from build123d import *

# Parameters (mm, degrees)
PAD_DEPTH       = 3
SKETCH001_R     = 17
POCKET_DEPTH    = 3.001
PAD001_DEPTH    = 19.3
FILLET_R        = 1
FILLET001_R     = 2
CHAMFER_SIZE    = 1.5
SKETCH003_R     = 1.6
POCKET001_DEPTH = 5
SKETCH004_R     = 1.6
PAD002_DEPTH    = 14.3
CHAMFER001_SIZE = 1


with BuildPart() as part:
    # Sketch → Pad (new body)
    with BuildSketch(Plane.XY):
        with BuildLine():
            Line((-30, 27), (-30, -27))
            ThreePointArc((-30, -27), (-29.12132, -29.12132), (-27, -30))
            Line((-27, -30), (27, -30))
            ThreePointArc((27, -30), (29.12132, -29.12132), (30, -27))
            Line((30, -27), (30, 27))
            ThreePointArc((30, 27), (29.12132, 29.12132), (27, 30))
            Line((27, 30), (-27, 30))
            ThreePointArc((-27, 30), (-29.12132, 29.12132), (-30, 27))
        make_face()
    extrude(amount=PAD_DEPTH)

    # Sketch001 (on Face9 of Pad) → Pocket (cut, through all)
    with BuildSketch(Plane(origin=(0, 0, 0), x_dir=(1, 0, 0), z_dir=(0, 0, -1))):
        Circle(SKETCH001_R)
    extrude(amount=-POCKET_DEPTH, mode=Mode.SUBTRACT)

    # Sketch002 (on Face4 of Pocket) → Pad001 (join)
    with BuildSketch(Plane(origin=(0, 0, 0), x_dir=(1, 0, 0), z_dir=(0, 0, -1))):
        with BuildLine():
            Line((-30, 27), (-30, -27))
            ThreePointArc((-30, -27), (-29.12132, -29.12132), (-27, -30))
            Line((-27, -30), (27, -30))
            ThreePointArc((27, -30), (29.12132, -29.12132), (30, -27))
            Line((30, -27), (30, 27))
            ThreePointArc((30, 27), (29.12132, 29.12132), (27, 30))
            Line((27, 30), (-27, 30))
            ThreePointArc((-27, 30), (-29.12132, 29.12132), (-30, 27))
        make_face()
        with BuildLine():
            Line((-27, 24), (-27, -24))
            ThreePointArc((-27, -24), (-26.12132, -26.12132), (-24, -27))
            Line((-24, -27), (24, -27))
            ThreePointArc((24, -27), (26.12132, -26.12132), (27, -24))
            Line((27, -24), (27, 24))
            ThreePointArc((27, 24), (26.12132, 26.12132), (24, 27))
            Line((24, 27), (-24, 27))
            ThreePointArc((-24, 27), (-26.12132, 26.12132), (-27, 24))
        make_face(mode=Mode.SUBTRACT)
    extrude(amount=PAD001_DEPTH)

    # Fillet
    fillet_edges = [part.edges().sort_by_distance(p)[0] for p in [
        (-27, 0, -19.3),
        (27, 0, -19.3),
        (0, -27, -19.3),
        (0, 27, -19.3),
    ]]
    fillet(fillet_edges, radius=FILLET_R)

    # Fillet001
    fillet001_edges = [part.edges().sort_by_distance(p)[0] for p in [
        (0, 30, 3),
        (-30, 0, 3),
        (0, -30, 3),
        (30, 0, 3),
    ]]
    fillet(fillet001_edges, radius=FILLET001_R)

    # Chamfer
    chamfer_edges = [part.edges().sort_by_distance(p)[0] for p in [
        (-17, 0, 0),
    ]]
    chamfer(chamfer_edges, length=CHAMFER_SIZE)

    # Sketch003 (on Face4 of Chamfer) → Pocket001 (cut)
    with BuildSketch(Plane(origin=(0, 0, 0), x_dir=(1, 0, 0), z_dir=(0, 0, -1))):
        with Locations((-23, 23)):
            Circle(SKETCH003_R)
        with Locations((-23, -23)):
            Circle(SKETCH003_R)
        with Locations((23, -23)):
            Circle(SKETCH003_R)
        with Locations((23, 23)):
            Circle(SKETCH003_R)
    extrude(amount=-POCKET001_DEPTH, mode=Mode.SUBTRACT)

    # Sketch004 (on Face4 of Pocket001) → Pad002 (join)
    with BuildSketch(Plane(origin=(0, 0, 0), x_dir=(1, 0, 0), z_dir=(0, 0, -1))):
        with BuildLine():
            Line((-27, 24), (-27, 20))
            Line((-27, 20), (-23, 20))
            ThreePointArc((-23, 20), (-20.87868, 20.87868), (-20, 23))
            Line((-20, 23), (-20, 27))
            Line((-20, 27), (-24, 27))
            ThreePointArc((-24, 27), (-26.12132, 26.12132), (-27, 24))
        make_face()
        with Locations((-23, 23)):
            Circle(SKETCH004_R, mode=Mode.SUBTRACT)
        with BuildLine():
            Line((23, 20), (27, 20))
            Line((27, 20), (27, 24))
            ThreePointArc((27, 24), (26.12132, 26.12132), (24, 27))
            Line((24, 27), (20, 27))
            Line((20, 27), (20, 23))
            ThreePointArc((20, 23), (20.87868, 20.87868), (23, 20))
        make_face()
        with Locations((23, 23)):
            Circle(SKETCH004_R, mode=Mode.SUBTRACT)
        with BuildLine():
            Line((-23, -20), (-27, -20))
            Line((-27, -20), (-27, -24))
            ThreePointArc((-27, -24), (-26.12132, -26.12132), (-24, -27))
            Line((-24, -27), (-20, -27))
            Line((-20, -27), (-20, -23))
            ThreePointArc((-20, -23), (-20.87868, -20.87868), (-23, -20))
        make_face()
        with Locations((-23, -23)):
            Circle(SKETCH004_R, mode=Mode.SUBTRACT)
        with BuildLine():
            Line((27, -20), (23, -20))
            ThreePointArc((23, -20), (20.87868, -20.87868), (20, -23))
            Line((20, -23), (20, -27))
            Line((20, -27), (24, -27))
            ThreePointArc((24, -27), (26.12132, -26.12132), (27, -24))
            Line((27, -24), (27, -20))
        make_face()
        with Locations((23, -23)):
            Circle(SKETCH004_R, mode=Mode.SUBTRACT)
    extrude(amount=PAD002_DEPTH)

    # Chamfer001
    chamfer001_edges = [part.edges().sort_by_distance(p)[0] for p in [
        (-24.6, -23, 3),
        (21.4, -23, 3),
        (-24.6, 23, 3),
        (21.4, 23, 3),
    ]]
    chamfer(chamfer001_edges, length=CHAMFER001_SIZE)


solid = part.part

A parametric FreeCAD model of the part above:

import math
import FreeCAD as App
import Part
import Sketcher
from FreeCAD import Vector


def edges_at(feature, points):
    """Names of the edges that pass closest to the given points."""
    edges = feature.Shape.Edges
    near = lambda p: min(range(len(edges)), key=lambda i: edges[i].distToShape(Part.Vertex(*p))[0])
    return sorted({f"Edge{near(p) + 1}" for p in points})

doc = App.newDocument("Part")
body = doc.addObject("PartDesign::Body", "Body")

# Sketch on XY plane
sketch1 = doc.addObject("Sketcher::SketchObject", "Sketch")
body.addObject(sketch1)
sketch1.AttachmentSupport = (doc.XY_Plane, [""])
sketch1.MapMode = "FlatFace"
sketch1.addGeometry([
    Part.LineSegment(Vector(-30, 27, 0), Vector(-30, -27, 0)),  # 0
    Part.ArcOfCircle(Part.Circle(Vector(-27, -27, 0), Vector(0, 0, 1), 3), math.radians(-180), math.radians(-90)),  # 1
    Part.LineSegment(Vector(-27, -30, 0), Vector(27, -30, 0)),  # 2
    Part.ArcOfCircle(Part.Circle(Vector(27, -27, 0), Vector(0, 0, 1), 3), math.radians(-90), math.radians(0)),  # 3
    Part.LineSegment(Vector(30, -27, 0), Vector(30, 27, 0)),  # 4
    Part.ArcOfCircle(Part.Circle(Vector(27, 27, 0), Vector(0, 0, 1), 3), math.radians(0), math.radians(90)),  # 5
    Part.LineSegment(Vector(27, 30, 0), Vector(-27, 30, 0)),  # 6
    Part.ArcOfCircle(Part.Circle(Vector(-27, 27, 0), Vector(0, 0, 1), 3), math.radians(90), math.radians(180)),  # 7
], False)
sketch1.addConstraint([
    Sketcher.Constraint("Tangent", 0, 2, 1, 1),
    Sketcher.Constraint("Tangent", 1, 2, 2, 1),
    Sketcher.Constraint("Tangent", 2, 2, 3, 1),
    Sketcher.Constraint("Tangent", 3, 2, 4, 1),
    Sketcher.Constraint("Tangent", 4, 2, 5, 1),
    Sketcher.Constraint("Tangent", 5, 2, 6, 1),
    Sketcher.Constraint("Tangent", 6, 2, 7, 1),
    Sketcher.Constraint("Tangent", 7, 2, 0, 1),
    Sketcher.Constraint("Vertical", 0),
    Sketcher.Constraint("Horizontal", 2),
    Sketcher.Constraint("Vertical", 4),
    Sketcher.Constraint("Horizontal", 6),
    Sketcher.Constraint("Equal", 1, 3),
    Sketcher.Constraint("Equal", 3, 5),
    Sketcher.Constraint("Equal", 5, 7),
    Sketcher.Constraint("Symmetric", 1, 3, 5, 3, -1, 1),
    Sketcher.Constraint("Equal", 6, 0),
    Sketcher.Constraint("Radius", 1, 3.000001),
    Sketcher.Constraint("DistanceX", 2, 1, 2, 2, 54.0),
])
pad1 = doc.addObject("PartDesign::Pad", "Pad")
body.addObject(pad1)
pad1.Profile = sketch1
pad1.Length = 3

# Sketch on XY plane
sketch2 = doc.addObject("Sketcher::SketchObject", "Sketch001")
body.addObject(sketch2)
sketch2.AttachmentSupport = (doc.XY_Plane, [""])
sketch2.MapMode = "FlatFace"
sketch2.addGeometry(Part.Circle(Vector(0, 0, 0), Vector(0, 0, 1), 17), False)
sketch2.addConstraint([
    Sketcher.Constraint("Coincident", 0, 3, -1, 1),
    Sketcher.Constraint("Diameter", 0, 34.0),
])
pocket1 = doc.addObject("PartDesign::Pocket", "Pocket")
body.addObject(pocket1)
pocket1.Profile = sketch2
pocket1.Type = "ThroughAll"
pocket1.Reversed = True

# Sketch on XY plane
sketch3 = doc.addObject("Sketcher::SketchObject", "Sketch002")
body.addObject(sketch3)
sketch3.AttachmentSupport = (doc.XY_Plane, [""])
sketch3.MapMode = "FlatFace"
sketch3.addGeometry([
    Part.LineSegment(Vector(-30, -27, 0), Vector(-30, 27, 0)),  # 0
    Part.ArcOfCircle(Part.Circle(Vector(-27, 27, 0), Vector(0, 0, 1), 3), math.radians(90), math.radians(180)),  # 1
    Part.LineSegment(Vector(-27, 30, 0), Vector(27, 30, 0)),  # 2
    Part.ArcOfCircle(Part.Circle(Vector(27, 27, 0), Vector(0, 0, 1), 3), math.radians(0), math.radians(90)),  # 3
    Part.LineSegment(Vector(30, 27, 0), Vector(30, -27, 0)),  # 4
    Part.ArcOfCircle(Part.Circle(Vector(27, -27, 0), Vector(0, 0, 1), 3), math.radians(-90), math.radians(0)),  # 5
    Part.LineSegment(Vector(27, -30, 0), Vector(-27, -30, 0)),  # 6
    Part.ArcOfCircle(Part.Circle(Vector(-27, -27, 0), Vector(0, 0, 1), 3), math.radians(-180), math.radians(-90)),  # 7
    Part.LineSegment(Vector(-27, 24, 0), Vector(-27, -24, 0)),  # 8
    Part.ArcOfCircle(Part.Circle(Vector(-24, -24, 0), Vector(0, 0, 1), 3), math.radians(-180), math.radians(-90)),  # 9
    Part.LineSegment(Vector(-24, -27, 0), Vector(24, -27, 0)),  # 10
    Part.ArcOfCircle(Part.Circle(Vector(24, -24, 0), Vector(0, 0, 1), 3), math.radians(-90), math.radians(0)),  # 11
    Part.LineSegment(Vector(27, -24, 0), Vector(27, 24, 0)),  # 12
    Part.ArcOfCircle(Part.Circle(Vector(24, 24, 0), Vector(0, 0, 1), 3), math.radians(0), math.radians(90)),  # 13
    Part.LineSegment(Vector(24, 27, 0), Vector(-24, 27, 0)),  # 14
    Part.ArcOfCircle(Part.Circle(Vector(-24, 24, 0), Vector(0, 0, 1), 3), math.radians(90), math.radians(180)),  # 15
], False)
sketch3.addConstraint([
    Sketcher.Constraint("Tangent", 0, 2, 1, 2),
    Sketcher.Constraint("Tangent", 1, 1, 2, 1),
    Sketcher.Constraint("Tangent", 2, 2, 3, 2),
    Sketcher.Constraint("Tangent", 3, 1, 4, 1),
    Sketcher.Constraint("Tangent", 4, 2, 5, 2),
    Sketcher.Constraint("Tangent", 5, 1, 6, 1),
    Sketcher.Constraint("Tangent", 6, 2, 7, 2),
    Sketcher.Constraint("Tangent", 7, 1, 0, 1),
    Sketcher.Constraint("Tangent", 8, 2, 9, 1),
    Sketcher.Constraint("Tangent", 9, 2, 10, 1),
    Sketcher.Constraint("Tangent", 10, 2, 11, 1),
    Sketcher.Constraint("Tangent", 11, 2, 12, 1),
    Sketcher.Constraint("Tangent", 12, 2, 13, 1),
    Sketcher.Constraint("Tangent", 13, 2, 14, 1),
    Sketcher.Constraint("Tangent", 14, 2, 15, 1),
    Sketcher.Constraint("Tangent", 15, 2, 8, 1),
    Sketcher.Constraint("Vertical", 0),
    Sketcher.Constraint("Horizontal", 2),
    Sketcher.Constraint("Vertical", 4),
    Sketcher.Constraint("Horizontal", 6),
    Sketcher.Constraint("Vertical", 8),
    Sketcher.Constraint("Horizontal", 10),
    Sketcher.Constraint("Vertical", 12),
    Sketcher.Constraint("Horizontal", 14),
    Sketcher.Constraint("Equal", 1, 3),
    Sketcher.Constraint("Equal", 3, 5),
    Sketcher.Constraint("Equal", 5, 7),
    Sketcher.Constraint("Equal", 7, 9),
    Sketcher.Constraint("Equal", 9, 11),
    Sketcher.Constraint("Equal", 11, 13),
    Sketcher.Constraint("Equal", 13, 15),
    Sketcher.Constraint("Symmetric", 1, 3, 5, 3, -1, 1),
    Sketcher.Constraint("Symmetric", 9, 3, 13, 3, -1, 1),
    Sketcher.Constraint("Horizontal", 7, 1, 9, 2),
    Sketcher.Constraint("Vertical", 6, 2, 8, 2),
    Sketcher.Constraint("Equal", 6, 0),
    Sketcher.Constraint("Radius", 1, 3.000001),
    Sketcher.Constraint("DistanceX", 2, 1, 2, 2, 54.0),
])
pad2 = doc.addObject("PartDesign::Pad", "Pad001")
body.addObject(pad2)
pad2.Profile = sketch3
pad2.Length = 19.3
pad2.Reversed = True
doc.recompute()

fillet = doc.addObject("PartDesign::Fillet", "Fillet")
body.addObject(fillet)
fillet.Base = (pad2, edges_at(pad2, [
    (-27, 0, -19.3),
    (27, 0, -19.3),
    (0, -27, -19.3),
    (0, 27, -19.3),
]))
fillet.Radius = 1
doc.recompute()

fillet2 = doc.addObject("PartDesign::Fillet", "Fillet001")
body.addObject(fillet2)
fillet2.Base = (fillet, edges_at(fillet, [
    (0, 30, 3),
    (-30, 0, 3),
    (0, -30, 3),
    (30, 0, 3),
]))
fillet2.Radius = 2
doc.recompute()

chamfer = doc.addObject("PartDesign::Chamfer", "Chamfer")
body.addObject(chamfer)
chamfer.Base = (fillet2, edges_at(fillet2, [(-17, 0, 0)]))
chamfer.Size = 1.5

# Sketch on XY plane
sketch4 = doc.addObject("Sketcher::SketchObject", "Sketch003")
body.addObject(sketch4)
sketch4.AttachmentSupport = (doc.XY_Plane, [""])
sketch4.MapMode = "FlatFace"
sketch4.addGeometry([
    Part.Circle(Vector(-23, -23, 0), Vector(0, 0, 1), 1.6),
    Part.Circle(Vector(-23, 23, 0), Vector(0, 0, 1), 1.6),
    Part.Circle(Vector(23, 23, 0), Vector(0, 0, 1), 1.6),
    Part.Circle(Vector(23, -23, 0), Vector(0, 0, 1), 1.6),
], False)
sketch4.addConstraint([
    Sketcher.Constraint("Equal", 0, 1),
    Sketcher.Constraint("Equal", 1, 2),
    Sketcher.Constraint("Equal", 2, 3),
    Sketcher.Constraint("Symmetric", 0, 3, 2, 3, -1, 1),
    Sketcher.Constraint("Symmetric", 1, 3, 3, 3, -1, 1),
    Sketcher.Constraint("Symmetric", 1, 3, 2, 3, -2),
    Sketcher.Constraint("Diameter", 0, 3.2),
    Sketcher.Constraint("DistanceX", 0, 3, -1, 1, 23.0),
    Sketcher.Constraint("DistanceY", 0, 3, -1, 1, 23.0),
])
pocket2 = doc.addObject("PartDesign::Pocket", "Pocket001")
body.addObject(pocket2)
pocket2.Profile = sketch4
pocket2.Length = 5
pocket2.Reversed = True

# Sketch on XY plane
sketch5 = doc.addObject("Sketcher::SketchObject", "Sketch004")
body.addObject(sketch5)
sketch5.AttachmentSupport = (doc.XY_Plane, [""])
sketch5.MapMode = "FlatFace"
sketch5.addGeometry([
    Part.LineSegment(Vector(-27, -24, 0), Vector(-27, -20, 0)),  # 0
    Part.LineSegment(Vector(-27, -20, 0), Vector(-23, -20, 0)),  # 1
    Part.ArcOfCircle(Part.Circle(Vector(-23, -23, 0), Vector(0, 0, 1), 3), math.radians(0), math.radians(90)),  # 2
    Part.LineSegment(Vector(-20, -23, 0), Vector(-20, -27, 0)),  # 3
    Part.LineSegment(Vector(-20, -27, 0), Vector(-24, -27, 0)),  # 4
    Part.ArcOfCircle(Part.Circle(Vector(-24, -24, 0), Vector(0, 0, 1), 3), math.radians(-180), math.radians(-90)),  # 5
    Part.Circle(Vector(-23, -23, 0), Vector(0, 0, 1), 1.6),  # 6
    Part.LineSegment(Vector(23, -20, 0), Vector(27, -20, 0)),  # 7
    Part.LineSegment(Vector(27, -20, 0), Vector(27, -24, 0)),  # 8
    Part.ArcOfCircle(Part.Circle(Vector(24, -24, 0), Vector(0, 0, 1), 3), math.radians(-90), math.radians(0)),  # 9
    Part.LineSegment(Vector(24, -27, 0), Vector(20, -27, 0)),  # 10
    Part.LineSegment(Vector(20, -27, 0), Vector(20, -23, 0)),  # 11
    Part.ArcOfCircle(Part.Circle(Vector(23, -23, 0), Vector(0, 0, 1), 3), math.radians(90), math.radians(180)),  # 12
    Part.Circle(Vector(23, -23, 0), Vector(0, 0, 1), 1.6),  # 13
    Part.LineSegment(Vector(-23, 20, 0), Vector(-27, 20, 0)),  # 14
    Part.LineSegment(Vector(-27, 20, 0), Vector(-27, 24, 0)),  # 15
    Part.ArcOfCircle(Part.Circle(Vector(-24, 24, 0), Vector(0, 0, 1), 3), math.radians(90), math.radians(180)),  # 16
    Part.LineSegment(Vector(-24, 27, 0), Vector(-20, 27, 0)),  # 17
    Part.LineSegment(Vector(-20, 27, 0), Vector(-20, 23, 0)),  # 18
    Part.ArcOfCircle(Part.Circle(Vector(-23, 23, 0), Vector(0, 0, 1), 3), math.radians(-90), math.radians(0)),  # 19
    Part.Circle(Vector(-23, 23, 0), Vector(0, 0, 1), 1.6),  # 20
    Part.LineSegment(Vector(27, 20, 0), Vector(23, 20, 0)),  # 21
    Part.ArcOfCircle(Part.Circle(Vector(23, 23, 0), Vector(0, 0, 1), 3), math.radians(-180), math.radians(-90)),  # 22
    Part.LineSegment(Vector(20, 23, 0), Vector(20, 27, 0)),  # 23
    Part.LineSegment(Vector(20, 27, 0), Vector(24, 27, 0)),  # 24
    Part.ArcOfCircle(Part.Circle(Vector(24, 24, 0), Vector(0, 0, 1), 3), math.radians(0), math.radians(90)),  # 25
    Part.LineSegment(Vector(27, 24, 0), Vector(27, 20, 0)),  # 26
    Part.Circle(Vector(23, 23, 0), Vector(0, 0, 1), 1.6),  # 27
], False)
sketch5.addConstraint([
    Sketcher.Constraint("Coincident", 0, 2, 1, 1),
    Sketcher.Constraint("Tangent", 1, 2, 2, 2),
    Sketcher.Constraint("Tangent", 2, 1, 3, 1),
    Sketcher.Constraint("Coincident", 3, 2, 4, 1),
    Sketcher.Constraint("Tangent", 4, 2, 5, 2),
    Sketcher.Constraint("Tangent", 5, 1, 0, 1),
    Sketcher.Constraint("Coincident", 7, 2, 8, 1),
    Sketcher.Constraint("Tangent", 8, 2, 9, 2),
    Sketcher.Constraint("Tangent", 9, 1, 10, 1),
    Sketcher.Constraint("Coincident", 10, 2, 11, 1),
    Sketcher.Constraint("Tangent", 11, 2, 12, 2),
    Sketcher.Constraint("Tangent", 12, 1, 7, 1),
    Sketcher.Constraint("Coincident", 14, 2, 15, 1),
    Sketcher.Constraint("Tangent", 15, 2, 16, 2),
    Sketcher.Constraint("Tangent", 16, 1, 17, 1),
    Sketcher.Constraint("Coincident", 17, 2, 18, 1),
    Sketcher.Constraint("Tangent", 18, 2, 19, 2),
    Sketcher.Constraint("Tangent", 19, 1, 14, 1),
    Sketcher.Constraint("Tangent", 21, 2, 22, 2),
    Sketcher.Constraint("Tangent", 22, 1, 23, 1),
    Sketcher.Constraint("Coincident", 23, 2, 24, 1),
    Sketcher.Constraint("Tangent", 24, 2, 25, 2),
    Sketcher.Constraint("Tangent", 25, 1, 26, 1),
    Sketcher.Constraint("Coincident", 26, 2, 21, 1),
    Sketcher.Constraint("Vertical", 0),
    Sketcher.Constraint("Horizontal", 1),
    Sketcher.Constraint("Vertical", 3),
    Sketcher.Constraint("Horizontal", 4),
    Sketcher.Constraint("Horizontal", 7),
    Sketcher.Constraint("Vertical", 8),
    Sketcher.Constraint("Horizontal", 10),
    Sketcher.Constraint("Vertical", 11),
    Sketcher.Constraint("Horizontal", 14),
    Sketcher.Constraint("Vertical", 15),
    Sketcher.Constraint("Horizontal", 17),
    Sketcher.Constraint("Vertical", 18),
    Sketcher.Constraint("Horizontal", 21),
    Sketcher.Constraint("Vertical", 23),
    Sketcher.Constraint("Horizontal", 24),
    Sketcher.Constraint("Vertical", 26),
    Sketcher.Constraint("Coincident", 6, 3, 2, 3),
    Sketcher.Constraint("Coincident", 13, 3, 12, 3),
    Sketcher.Constraint("Coincident", 20, 3, 19, 3),
    Sketcher.Constraint("Coincident", 27, 3, 22, 3),
    Sketcher.Constraint("Equal", 2, 5),
    Sketcher.Constraint("Equal", 5, 9),
    Sketcher.Constraint("Equal", 9, 12),
    Sketcher.Constraint("Equal", 6, 13),
    Sketcher.Constraint("Equal", 12, 16),
    Sketcher.Constraint("Equal", 16, 19),
    Sketcher.Constraint("Equal", 13, 20),
    Sketcher.Constraint("Equal", 19, 22),
    Sketcher.Constraint("Equal", 22, 25),
    Sketcher.Constraint("Equal", 20, 27),
    Sketcher.Constraint("Symmetric", 9, 3, 16, 3, -1, 1),
    Sketcher.Constraint("Symmetric", 12, 3, 19, 3, -1, 1),
    Sketcher.Constraint("Symmetric", 2, 3, 22, 3, -1, 1),
    Sketcher.Constraint("Symmetric", 5, 3, 25, 3, -1, 1),
    Sketcher.Constraint("Symmetric", 5, 3, 9, 3, -2),
    Sketcher.Constraint("Symmetric", 2, 3, 12, 3, -2),
    Sketcher.Constraint("Equal", 24, 0),
    Sketcher.Constraint("Radius", 2, 3.000001),
    Sketcher.Constraint("Diameter", 6, 3.2),
    Sketcher.Constraint("DistanceX", 1, 1, 1, 2, 4.0),
    Sketcher.Constraint("DistanceX", 2, 3, -1, 1, 23.000001),
    Sketcher.Constraint("DistanceY", 2, 3, -1, 1, 23.000001),
])
pad3 = doc.addObject("PartDesign::Pad", "Pad002")
body.addObject(pad3)
pad3.Profile = sketch5
pad3.Length = 14.3
pad3.Reversed = True
doc.recompute()

chamfer2 = doc.addObject("PartDesign::Chamfer", "Chamfer001")
body.addObject(chamfer2)
chamfer2.Base = (pad3, edges_at(pad3, [
    (-24.6, -23, 3),
    (21.4, -23, 3),
    (-24.6, 23, 3),
    (21.4, 23, 3),
]))
chamfer2.Size = 1

doc.recompute()
